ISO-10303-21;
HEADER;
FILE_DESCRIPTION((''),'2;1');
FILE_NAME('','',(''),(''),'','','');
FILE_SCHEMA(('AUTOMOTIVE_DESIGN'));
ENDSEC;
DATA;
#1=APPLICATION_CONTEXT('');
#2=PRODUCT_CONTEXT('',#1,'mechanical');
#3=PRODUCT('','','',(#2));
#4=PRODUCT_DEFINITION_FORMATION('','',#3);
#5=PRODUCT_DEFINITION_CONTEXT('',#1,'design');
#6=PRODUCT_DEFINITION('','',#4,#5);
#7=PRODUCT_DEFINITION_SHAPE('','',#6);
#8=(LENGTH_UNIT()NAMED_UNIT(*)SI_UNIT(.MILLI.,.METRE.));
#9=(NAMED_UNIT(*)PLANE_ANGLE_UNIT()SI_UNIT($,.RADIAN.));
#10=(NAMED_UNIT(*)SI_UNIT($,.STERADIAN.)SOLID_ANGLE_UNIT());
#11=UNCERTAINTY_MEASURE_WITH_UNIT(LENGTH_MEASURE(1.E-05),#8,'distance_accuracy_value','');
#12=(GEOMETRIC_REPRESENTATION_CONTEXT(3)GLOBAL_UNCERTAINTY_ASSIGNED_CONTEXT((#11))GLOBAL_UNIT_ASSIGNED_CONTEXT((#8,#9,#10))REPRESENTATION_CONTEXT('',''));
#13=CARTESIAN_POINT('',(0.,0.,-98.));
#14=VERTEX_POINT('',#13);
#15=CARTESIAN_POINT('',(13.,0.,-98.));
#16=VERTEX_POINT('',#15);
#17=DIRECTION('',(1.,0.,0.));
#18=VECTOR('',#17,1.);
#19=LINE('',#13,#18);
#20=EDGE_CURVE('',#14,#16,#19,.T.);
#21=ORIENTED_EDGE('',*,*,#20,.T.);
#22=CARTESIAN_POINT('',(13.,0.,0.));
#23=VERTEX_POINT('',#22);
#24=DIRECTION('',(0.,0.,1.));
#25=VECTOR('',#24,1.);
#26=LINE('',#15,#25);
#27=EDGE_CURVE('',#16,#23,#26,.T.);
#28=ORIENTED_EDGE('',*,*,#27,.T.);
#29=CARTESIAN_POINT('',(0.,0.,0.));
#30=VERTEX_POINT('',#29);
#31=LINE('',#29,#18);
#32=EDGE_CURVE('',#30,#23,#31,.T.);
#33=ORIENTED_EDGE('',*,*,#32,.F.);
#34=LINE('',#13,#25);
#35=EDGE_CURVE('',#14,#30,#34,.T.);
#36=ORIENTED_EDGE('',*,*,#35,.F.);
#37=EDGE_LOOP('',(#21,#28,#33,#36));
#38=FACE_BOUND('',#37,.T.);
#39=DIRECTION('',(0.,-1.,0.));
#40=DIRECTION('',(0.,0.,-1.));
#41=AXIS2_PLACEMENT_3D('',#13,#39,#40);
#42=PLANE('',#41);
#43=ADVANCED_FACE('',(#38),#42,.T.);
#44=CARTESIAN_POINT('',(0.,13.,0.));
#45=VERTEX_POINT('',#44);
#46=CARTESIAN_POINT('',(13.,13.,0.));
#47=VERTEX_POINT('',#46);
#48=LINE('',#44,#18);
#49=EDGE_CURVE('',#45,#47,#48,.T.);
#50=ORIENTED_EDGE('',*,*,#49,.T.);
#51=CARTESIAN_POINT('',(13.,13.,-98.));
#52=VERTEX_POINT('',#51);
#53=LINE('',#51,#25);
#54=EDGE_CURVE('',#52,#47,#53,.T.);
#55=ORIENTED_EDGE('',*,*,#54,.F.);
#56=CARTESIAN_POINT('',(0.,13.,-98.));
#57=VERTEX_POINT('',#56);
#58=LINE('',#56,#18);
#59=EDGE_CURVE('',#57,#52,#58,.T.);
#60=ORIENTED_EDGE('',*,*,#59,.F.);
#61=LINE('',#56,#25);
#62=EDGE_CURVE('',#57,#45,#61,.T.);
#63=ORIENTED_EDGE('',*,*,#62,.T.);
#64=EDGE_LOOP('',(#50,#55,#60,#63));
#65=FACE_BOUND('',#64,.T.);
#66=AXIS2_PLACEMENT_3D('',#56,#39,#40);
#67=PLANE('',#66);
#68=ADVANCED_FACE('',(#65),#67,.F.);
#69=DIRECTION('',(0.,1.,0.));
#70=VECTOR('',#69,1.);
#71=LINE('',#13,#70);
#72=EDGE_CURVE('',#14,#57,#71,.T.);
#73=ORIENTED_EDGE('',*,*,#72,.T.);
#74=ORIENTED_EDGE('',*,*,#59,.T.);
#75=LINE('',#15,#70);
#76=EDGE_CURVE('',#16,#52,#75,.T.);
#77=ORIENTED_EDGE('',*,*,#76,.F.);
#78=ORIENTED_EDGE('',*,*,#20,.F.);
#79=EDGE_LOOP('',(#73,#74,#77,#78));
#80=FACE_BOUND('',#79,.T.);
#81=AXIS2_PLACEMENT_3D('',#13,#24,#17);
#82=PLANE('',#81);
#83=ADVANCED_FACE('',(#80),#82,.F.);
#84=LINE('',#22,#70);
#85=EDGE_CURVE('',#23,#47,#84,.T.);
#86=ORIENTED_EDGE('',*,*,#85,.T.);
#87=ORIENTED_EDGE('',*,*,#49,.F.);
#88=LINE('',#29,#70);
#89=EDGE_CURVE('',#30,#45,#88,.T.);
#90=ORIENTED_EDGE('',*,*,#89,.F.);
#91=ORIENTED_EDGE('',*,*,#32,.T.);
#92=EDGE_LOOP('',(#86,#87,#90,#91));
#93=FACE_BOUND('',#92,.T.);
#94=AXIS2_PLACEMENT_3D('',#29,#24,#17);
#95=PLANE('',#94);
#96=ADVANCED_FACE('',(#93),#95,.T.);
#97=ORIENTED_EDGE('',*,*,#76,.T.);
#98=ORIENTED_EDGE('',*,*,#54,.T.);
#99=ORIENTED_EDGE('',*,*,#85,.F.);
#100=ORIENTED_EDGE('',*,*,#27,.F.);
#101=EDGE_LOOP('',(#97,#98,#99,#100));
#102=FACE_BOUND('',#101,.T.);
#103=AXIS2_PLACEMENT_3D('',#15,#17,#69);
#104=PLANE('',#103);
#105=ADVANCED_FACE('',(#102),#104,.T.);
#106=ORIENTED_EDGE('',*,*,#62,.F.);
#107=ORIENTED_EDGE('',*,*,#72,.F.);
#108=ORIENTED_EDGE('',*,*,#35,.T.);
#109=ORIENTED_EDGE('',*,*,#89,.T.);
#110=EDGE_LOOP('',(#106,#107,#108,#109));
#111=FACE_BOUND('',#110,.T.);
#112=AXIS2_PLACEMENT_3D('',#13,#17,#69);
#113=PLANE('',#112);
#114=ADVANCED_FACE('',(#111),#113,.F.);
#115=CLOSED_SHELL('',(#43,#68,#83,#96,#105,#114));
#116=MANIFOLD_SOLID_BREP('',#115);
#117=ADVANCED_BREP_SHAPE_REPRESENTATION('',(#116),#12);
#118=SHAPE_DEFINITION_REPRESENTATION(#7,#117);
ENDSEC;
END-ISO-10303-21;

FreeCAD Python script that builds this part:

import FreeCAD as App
import Part
import Sketcher
from FreeCAD import Vector
Q = App.Units.Quantity


def add_polygon(sketch, points):
    """Adds a closed chain of lines whose ends are joined by coincident constraints."""
    first, n = sketch.GeometryCount, len(points)
    for a, b in zip(points, points[1:] + points[:1]):
        sketch.addGeometry(Part.LineSegment(App.Vector(*a, 0), App.Vector(*b, 0)), False)
    for i in range(n):
        sketch.addConstraint(Sketcher.Constraint("Coincident", first + i, 2, first + (i + 1) % n, 1))

doc = App.newDocument("Part")
params = doc.addObject("Spreadsheet::Sheet", "Params")
for row, (alias, value) in enumerate([
    ("sketch1_width", "13 mm"),
    ("pad1_length", "98 mm"),
], start=1):
    params.set(f"A{row}", alias)
    params.set(f"B{row}", "=" + value)
    params.setAlias(f"B{row}", alias)

body = doc.addObject("PartDesign::Body", "Body")

sketch1 = body.newObject("Sketcher::SketchObject", "Sketch")
sketch1.AttachmentSupport = (doc.getObject("XY_Plane"), [""])
sketch1.MapMode = "FlatFace"
add_polygon(sketch1, [(0, 13), (0, 0), (13, 0), (13, 13)])
sketch1.addConstraint([
    Sketcher.Constraint("Vertical", 0),
    Sketcher.Constraint("Horizontal", 1),
    Sketcher.Constraint("Vertical", 2),
    Sketcher.Constraint("Horizontal", 3),
    Sketcher.Constraint("Coincident", 0, 2, -1, 1),
    Sketcher.Constraint("Equal", 3, 0),
    Sketcher.Constraint("DistanceX", 1, 1, 1, 2, Q("13 mm")),
])
sketch1.setExpression("Constraints[10]", "Params.sketch1_width")
pad1 = body.newObject("PartDesign::Pad", "Pad")
pad1.Profile = sketch1
pad1.setExpression("Length", "Params.pad1_length")
pad1.Reversed = True

doc.recompute()
